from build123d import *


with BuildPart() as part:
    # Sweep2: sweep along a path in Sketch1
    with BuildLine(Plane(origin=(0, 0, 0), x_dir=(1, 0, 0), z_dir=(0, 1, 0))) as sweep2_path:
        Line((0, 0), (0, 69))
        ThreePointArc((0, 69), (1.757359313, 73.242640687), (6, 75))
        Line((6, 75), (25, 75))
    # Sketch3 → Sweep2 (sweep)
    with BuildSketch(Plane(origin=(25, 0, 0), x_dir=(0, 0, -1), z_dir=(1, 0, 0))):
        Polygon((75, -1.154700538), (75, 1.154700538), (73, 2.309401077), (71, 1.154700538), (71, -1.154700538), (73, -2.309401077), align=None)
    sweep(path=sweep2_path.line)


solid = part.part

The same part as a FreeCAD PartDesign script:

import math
import FreeCAD as App
import Part
import Sketcher
from FreeCAD import Vector
Q = App.Units.Quantity

doc = App.newDocument("Part")
body = doc.addObject("PartDesign::Body", "Body")

sketch1 = doc.addObject("Sketcher::SketchObject", "Sketch")
body.addObject(sketch1)
sketch1.AttachmentSupport = (doc.YZ_Plane, [""])
sketch1.MapMode = "FlatFace"
sketch1.AttachmentOffset = App.Placement(Vector(0, 0, 25), App.Rotation())
sketch1.addGeometry(Part.LineSegment(Vector(-1.2, -75, 0), Vector(1.2, -75, 0)), False)
sketch1.addGeometry(Part.LineSegment(Vector(1.2, -75, 0), Vector(2.3, -73, 0)), False)
sketch1.addGeometry(Part.LineSegment(Vector(2.3, -73, 0), Vector(1.2, -71, 0)), False)
sketch1.addGeometry(Part.LineSegment(Vector(1.2, -71, 0), Vector(-1.2, -71, 0)), False)
sketch1.addGeometry(Part.LineSegment(Vector(-1.2, -71, 0), Vector(-2.3, -73, 0)), False)
sketch1.addGeometry(Part.LineSegment(Vector(-2.3, -73, 0), Vector(-1.2, -75, 0)), False)
sketch1.addConstraint(Sketcher.Constraint("Coincident", 0, 2, 1, 1))
sketch1.addConstraint(Sketcher.Constraint("Coincident", 1, 2, 2, 1))
sketch1.addConstraint(Sketcher.Constraint("Coincident", 2, 2, 3, 1))
sketch1.addConstraint(Sketcher.Constraint("Coincident", 3, 2, 4, 1))
sketch1.addConstraint(Sketcher.Constraint("Coincident", 4, 2, 5, 1))
sketch1.addConstraint(Sketcher.Constraint("Coincident", 5, 2, 0, 1))
sketch1.addConstraint(Sketcher.Constraint("Horizontal", 0))
sketch1.addConstraint(Sketcher.Constraint("Horizontal", 3))
sketch1.addConstraint(Sketcher.Constraint("Symmetric", 1, 2, 4, 2, -2))
sketch1.addConstraint(Sketcher.Constraint("Parallel", 1, 4))
sketch1.addConstraint(Sketcher.Constraint("Parallel", 2, 5))
sketch1.addConstraint(Sketcher.Constraint("Vertical", 0, 2, 2, 2))
sketch1.addConstraint(Sketcher.Constraint("Vertical", 3, 2, 5, 2))
sketch1.addConstraint(Sketcher.Constraint("Angle", 1, Q("60 deg")))
sketch1.addConstraint(Sketcher.Constraint("DistanceY", 0, 2, -1, 1, 75.0))
sketch1.addConstraint(Sketcher.Constraint("DistanceY", 1, 2, -1, 1, 73.0))
sketch1.addConstraint(Sketcher.Constraint("DistanceX", 0, 1, 0, 2, 2.309401))

sketch2 = doc.addObject("Sketcher::SketchObject", "Sketch001")
body.addObject(sketch2)
sketch2.AttachmentSupport = (doc.XZ_Plane, [""])
sketch2.MapMode = "FlatFace"
sketch2.addGeometry(Part.LineSegment(Vector(0, 0, 0), Vector(0, -69, 0)), False)
sketch2.addGeometry(Part.ArcOfCircle(Part.Circle(Vector(6, -69, 0), Vector(0, 0, 1), 6), math.radians(180), math.radians(270)), False)
sketch2.addGeometry(Part.LineSegment(Vector(6, -75, 0), Vector(25, -75, 0)), False)
sketch2.addConstraint(Sketcher.Constraint("Tangent", 0, 2, 1, 1))
sketch2.addConstraint(Sketcher.Constraint("Tangent", 1, 2, 2, 1))
sketch2.addConstraint(Sketcher.Constraint("Vertical", 0))
sketch2.addConstraint(Sketcher.Constraint("Horizontal", 2))
sketch2.addConstraint(Sketcher.Constraint("Coincident", 0, 1, -1, 1))
sketch2.addConstraint(Sketcher.Constraint("Radius", 1, 6.0))
sketch2.addConstraint(Sketcher.Constraint("DistanceX", 2, 1, 2, 2, 19.0))
sketch2.addConstraint(Sketcher.Constraint("DistanceY", 0, 2, 0, 1, 69.0))
doc.recompute()

additivepipe = doc.addObject("PartDesign::AdditivePipe", "AdditivePipe")
body.addObject(additivepipe)
additivepipe.Profile = sketch1
additivepipe.Spine = (sketch2, ["Edge1", "Edge2", "Edge3"])

doc.recompute()
